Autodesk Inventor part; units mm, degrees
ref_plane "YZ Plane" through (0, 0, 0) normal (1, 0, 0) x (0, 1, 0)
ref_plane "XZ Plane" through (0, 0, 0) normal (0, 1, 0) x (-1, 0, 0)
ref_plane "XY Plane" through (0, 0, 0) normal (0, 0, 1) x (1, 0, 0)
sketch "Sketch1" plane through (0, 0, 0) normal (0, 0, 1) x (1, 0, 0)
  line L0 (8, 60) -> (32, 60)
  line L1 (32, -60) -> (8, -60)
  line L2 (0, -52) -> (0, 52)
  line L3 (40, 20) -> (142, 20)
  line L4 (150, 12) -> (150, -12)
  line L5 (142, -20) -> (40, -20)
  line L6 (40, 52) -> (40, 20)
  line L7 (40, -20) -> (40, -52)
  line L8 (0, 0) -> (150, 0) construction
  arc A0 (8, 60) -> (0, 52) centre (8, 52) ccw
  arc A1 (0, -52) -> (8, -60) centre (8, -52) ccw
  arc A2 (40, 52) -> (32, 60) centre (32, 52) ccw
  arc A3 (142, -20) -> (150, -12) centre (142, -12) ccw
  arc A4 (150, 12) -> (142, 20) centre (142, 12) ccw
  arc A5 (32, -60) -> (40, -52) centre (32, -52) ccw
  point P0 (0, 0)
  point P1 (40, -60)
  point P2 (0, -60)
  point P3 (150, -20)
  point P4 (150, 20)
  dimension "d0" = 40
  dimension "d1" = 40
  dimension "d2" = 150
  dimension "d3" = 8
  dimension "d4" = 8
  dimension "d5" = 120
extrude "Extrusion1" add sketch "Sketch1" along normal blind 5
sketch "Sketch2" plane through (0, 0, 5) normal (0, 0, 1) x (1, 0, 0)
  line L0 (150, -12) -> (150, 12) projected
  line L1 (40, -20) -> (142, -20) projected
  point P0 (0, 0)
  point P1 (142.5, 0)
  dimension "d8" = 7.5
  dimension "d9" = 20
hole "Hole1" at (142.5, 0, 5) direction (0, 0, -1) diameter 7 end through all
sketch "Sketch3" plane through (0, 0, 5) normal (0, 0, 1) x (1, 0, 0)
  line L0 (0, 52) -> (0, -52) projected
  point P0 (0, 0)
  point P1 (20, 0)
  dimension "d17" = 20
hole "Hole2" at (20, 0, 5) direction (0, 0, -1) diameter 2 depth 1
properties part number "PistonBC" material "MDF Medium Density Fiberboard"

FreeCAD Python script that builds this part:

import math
import FreeCAD as App
import Part
import Sketcher
Q = App.Units.Quantity

doc = App.newDocument("Part")
body = doc.addObject("PartDesign::Body", "Body")

sketch1 = body.newObject("Sketcher::SketchObject", "Sketch")
sketch1.AttachmentSupport = (doc.getObject("XY_Plane"), [""])
sketch1.MapMode = "FlatFace"
sketch1.addGeometry(Part.LineSegment(App.Vector(32, 60, 0), App.Vector(8, 60, 0)), False)
sketch1.addGeometry(Part.ArcOfCircle(Part.Circle(App.Vector(8, 52, 0), App.Vector(0, 0, 1), 8), math.radians(90), math.radians(180)), False)
sketch1.addGeometry(Part.LineSegment(App.Vector(0, 52, 0), App.Vector(0, -52, 0)), False)
sketch1.addGeometry(Part.ArcOfCircle(Part.Circle(App.Vector(8, -52, 0), App.Vector(0, 0, 1), 8), math.radians(180), math.radians(270)), False)
sketch1.addGeometry(Part.LineSegment(App.Vector(8, -60, 0), App.Vector(32, -60, 0)), False)
sketch1.addGeometry(Part.ArcOfCircle(Part.Circle(App.Vector(32, -52, 0), App.Vector(0, 0, 1), 8), math.radians(-90), math.radians(0)), False)
sketch1.addGeometry(Part.LineSegment(App.Vector(40, -52, 0), App.Vector(40, -20, 0)), False)
sketch1.addGeometry(Part.LineSegment(App.Vector(40, -20, 0), App.Vector(142, -20, 0)), False)
sketch1.addGeometry(Part.ArcOfCircle(Part.Circle(App.Vector(142, -12, 0), App.Vector(0, 0, 1), 8), math.radians(-90), math.radians(0)), False)
sketch1.addGeometry(Part.LineSegment(App.Vector(150, -12, 0), App.Vector(150, 12, 0)), False)
sketch1.addGeometry(Part.ArcOfCircle(Part.Circle(App.Vector(142, 12, 0), App.Vector(0, 0, 1), 8), math.radians(0), math.radians(90)), False)
sketch1.addGeometry(Part.LineSegment(App.Vector(142, 20, 0), App.Vector(40, 20, 0)), False)
sketch1.addGeometry(Part.LineSegment(App.Vector(40, 20, 0), App.Vector(40, 52, 0)), False)
sketch1.addGeometry(Part.ArcOfCircle(Part.Circle(App.Vector(32, 52, 0), App.Vector(0, 0, 1), 8), math.radians(0), math.radians(90)), False)
sketch1.addConstraint(Sketcher.Constraint("Tangent", 0, 2, 1, 1))
sketch1.addConstraint(Sketcher.Constraint("Tangent", 1, 2, 2, 1))
sketch1.addConstraint(Sketcher.Constraint("Tangent", 2, 2, 3, 1))
sketch1.addConstraint(Sketcher.Constraint("Tangent", 3, 2, 4, 1))
sketch1.addConstraint(Sketcher.Constraint("Tangent", 4, 2, 5, 1))
sketch1.addConstraint(Sketcher.Constraint("Tangent", 5, 2, 6, 1))
sketch1.addConstraint(Sketcher.Constraint("Coincident", 6, 2, 7, 1))
sketch1.addConstraint(Sketcher.Constraint("Tangent", 7, 2, 8, 1))
sketch1.addConstraint(Sketcher.Constraint("Tangent", 8, 2, 9, 1))
sketch1.addConstraint(Sketcher.Constraint("Tangent", 9, 2, 10, 1))
sketch1.addConstraint(Sketcher.Constraint("Tangent", 10, 2, 11, 1))
sketch1.addConstraint(Sketcher.Constraint("Coincident", 11, 2, 12, 1))
sketch1.addConstraint(Sketcher.Constraint("Tangent", 12, 2, 13, 1))
sketch1.addConstraint(Sketcher.Constraint("Tangent", 13, 2, 0, 1))
sketch1.addConstraint(Sketcher.Constraint("Horizontal", 0))
sketch1.addConstraint(Sketcher.Constraint("Vertical", 2))
sketch1.addConstraint(Sketcher.Constraint("Horizontal", 4))
sketch1.addConstraint(Sketcher.Constraint("Vertical", 6))
sketch1.addConstraint(Sketcher.Constraint("Horizontal", 7))
sketch1.addConstraint(Sketcher.Constraint("Vertical", 9))
sketch1.addConstraint(Sketcher.Constraint("Horizontal", 11))
sketch1.addConstraint(Sketcher.Constraint("Vertical", 12))
sketch1.addConstraint(Sketcher.Constraint("Equal", 1, 3))
sketch1.addConstraint(Sketcher.Constraint("Equal", 3, 5))
sketch1.addConstraint(Sketcher.Constraint("Equal", 5, 8))
sketch1.addConstraint(Sketcher.Constraint("Equal", 8, 10))
sketch1.addConstraint(Sketcher.Constraint("Equal", 10, 13))
sketch1.addConstraint(Sketcher.Constraint("Symmetric", 1, 2, 2, 2, -1, 1))
sketch1.addConstraint(Sketcher.Constraint("Symmetric", 6, 2, 11, 2, -1))
sketch1.addConstraint(Sketcher.Constraint("Equal", 4, 9))
sketch1.addConstraint(Sketcher.Constraint("Radius", 1, Q("8 mm")))
sketch1.addConstraint(Sketcher.Constraint("DistanceX", -1, 1, 5, 2, Q("40 mm")))
sketch1.addConstraint(Sketcher.Constraint("DistanceX", -1, 1, 8, 2, Q("150 mm")))
sketch1.addConstraint(Sketcher.Constraint("DistanceY", 5, 3, 8, 3, Q("40 mm")))
pad1 = body.newObject("PartDesign::Pad", "Pad")
pad1.Profile = sketch1
pad1.Length = 5

sketch2 = body.newObject("Sketcher::SketchObject", "Sketch001")
sketch2.AttachmentSupport = (doc.getObject("XY_Plane"), [""])
sketch2.MapMode = "FlatFace"
sketch2.AttachmentOffset = App.Placement(App.Vector(0, 0, 5), App.Rotation())
sketch2.addGeometry(Part.Circle(App.Vector(142.5, 0, 0), App.Vector(0, 0, 1), 3.5), False)
sketch2.addConstraint(Sketcher.Constraint("PointOnObject", 0, 3, -1))
sketch2.addConstraint(Sketcher.Constraint("Diameter", 0, Q("7 mm")))
sketch2.addConstraint(Sketcher.Constraint("DistanceX", -1, 1, 0, 3, Q("142.5 mm")))
doc.recompute()
hole = body.newObject("PartDesign::Hole", "Hole")
hole.Profile = sketch2
hole.ThreadType = "None"
hole.Diameter = 7
hole.DepthType = "ThroughAll"

sketch3 = body.newObject("Sketcher::SketchObject", "Sketch002")
sketch3.AttachmentSupport = (doc.getObject("XY_Plane"), [""])
sketch3.MapMode = "FlatFace"
sketch3.AttachmentOffset = App.Placement(App.Vector(0, 0, 5), App.Rotation())
sketch3.addGeometry(Part.Circle(App.Vector(20, 0, 0), App.Vector(0, 0, 1), 1), False)
sketch3.addConstraint(Sketcher.Constraint("PointOnObject", 0, 3, -1))
sketch3.addConstraint(Sketcher.Constraint("Diameter", 0, Q("2 mm")))
sketch3.addConstraint(Sketcher.Constraint("DistanceX", -1, 1, 0, 3, Q("20 mm")))
doc.recompute()
hole2 = body.newObject("PartDesign::Hole", "Hole001")
hole2.Profile = sketch3
hole2.ThreadType = "None"
hole2.Diameter = 2
hole2.DepthType = "Dimension"
hole2.Depth = 1
hole2.DrillPoint = "Flat"

doc.recompute()
